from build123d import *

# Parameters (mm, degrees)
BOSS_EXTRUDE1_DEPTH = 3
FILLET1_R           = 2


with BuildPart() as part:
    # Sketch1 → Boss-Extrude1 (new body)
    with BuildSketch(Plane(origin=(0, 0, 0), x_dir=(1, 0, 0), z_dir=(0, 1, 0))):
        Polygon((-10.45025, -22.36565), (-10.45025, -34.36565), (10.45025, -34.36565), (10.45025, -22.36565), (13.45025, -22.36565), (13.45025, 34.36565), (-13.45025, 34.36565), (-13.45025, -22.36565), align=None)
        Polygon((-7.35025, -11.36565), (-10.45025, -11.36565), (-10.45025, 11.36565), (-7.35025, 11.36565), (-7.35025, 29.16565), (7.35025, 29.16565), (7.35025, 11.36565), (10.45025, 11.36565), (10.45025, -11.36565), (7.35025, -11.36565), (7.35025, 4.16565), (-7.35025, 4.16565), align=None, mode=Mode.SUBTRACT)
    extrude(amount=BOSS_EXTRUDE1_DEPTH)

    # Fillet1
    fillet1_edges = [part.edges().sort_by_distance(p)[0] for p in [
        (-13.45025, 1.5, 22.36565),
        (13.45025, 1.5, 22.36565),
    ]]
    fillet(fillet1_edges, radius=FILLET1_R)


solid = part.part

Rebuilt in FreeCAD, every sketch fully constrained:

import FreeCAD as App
import Part
import Sketcher


def edges_at(feature, points):
    """Names of the edges that pass closest to the given points."""
    edges = feature.Shape.Edges
    near = lambda p: min(range(len(edges)), key=lambda i: edges[i].distToShape(Part.Vertex(*p))[0])
    return sorted({f"Edge{near(p) + 1}" for p in points})


def add_polygon(sketch, points):
    """Adds a closed chain of lines whose ends are joined by coincident constraints."""
    first, n = sketch.GeometryCount, len(points)
    for a, b in zip(points, points[1:] + points[:1]):
        sketch.addGeometry(Part.LineSegment(App.Vector(*a, 0), App.Vector(*b, 0)), False)
    for i in range(n):
        sketch.addConstraint(Sketcher.Constraint("Coincident", first + i, 2, first + (i + 1) % n, 1))

doc = App.newDocument("Part")
params = doc.addObject("Spreadsheet::Sheet", "Params")
for row, (alias, value) in enumerate([
    ("sketch1_width", "3 mm"),
    ("sketch1_height", "12 mm"),
    ("sketch1_width2", "3.1 mm"),
    ("sketch1_height2", "17.8 mm"),
    ("pad1_length", "3 mm"),
    ("fillet_radius", "2 mm"),
], start=1):
    params.set(f"A{row}", alias)
    params.set(f"B{row}", "=" + value)
    params.setAlias(f"B{row}", alias)

body = doc.addObject("PartDesign::Body", "Body")

sketch1 = body.newObject("Sketcher::SketchObject", "Sketch")
sketch1.AttachmentSupport = (doc.getObject("XZ_Plane"), [""])
sketch1.MapMode = "FlatFace"
add_polygon(sketch1, [(-10.5, 22.4), (-10.5, 34.4), (10.5, 34.4), (10.5, 22.4), (13.5, 22.4), (13.5, -34.4), (-13.5, -34.4), (-13.5, 22.4)])
add_polygon(sketch1, [(-7.4, -4.2), (-7.4, 11.4), (-10.5, 11.4), (-10.5, -11.4), (-7.4, -11.4), (-7.4, -29.2), (7.4, -29.2), (7.4, -11.4), (10.5, -11.4), (10.5, 11.4), (7.4, 11.4), (7.4, -4.2)])
sketch1.addConstraint([
    Sketcher.Constraint("Vertical", 0),
    Sketcher.Constraint("Horizontal", 1),
    Sketcher.Constraint("Vertical", 2),
    Sketcher.Constraint("Horizontal", 3),
    Sketcher.Constraint("Vertical", 4),
    Sketcher.Constraint("Horizontal", 5),
    Sketcher.Constraint("Vertical", 6),
    Sketcher.Constraint("Horizontal", 7),
    Sketcher.Constraint("Vertical", 8),
    Sketcher.Constraint("Horizontal", 9),
    Sketcher.Constraint("Vertical", 10),
    Sketcher.Constraint("Horizontal", 11),
    Sketcher.Constraint("Vertical", 12),
    Sketcher.Constraint("Horizontal", 13),
    Sketcher.Constraint("Vertical", 14),
    Sketcher.Constraint("Horizontal", 15),
    Sketcher.Constraint("Vertical", 16),
    Sketcher.Constraint("Horizontal", 17),
    Sketcher.Constraint("Vertical", 18),
    Sketcher.Constraint("Horizontal", 19),
    Sketcher.Constraint("Symmetric", 8, 2, 14, 2, -1, 1),
    Sketcher.Constraint("Symmetric", 10, 2, 16, 2, -1, 1),
    Sketcher.Constraint("Symmetric", 3, 2, 6, 2, -2),
    Sketcher.Constraint("Symmetric", 11, 2, 14, 2, -2),
    Sketcher.Constraint("Vertical", 7, 2, 9, 2),
    Sketcher.Constraint("Vertical", 2, 2, 15, 2),
    Sketcher.Constraint("Vertical", 14, 2, 17, 2),
    Sketcher.Constraint("DistanceX", 3, 1, 3, 2, 3.0),
    Sketcher.Constraint("DistanceY", 0, 1, 0, 2, 12.0),
    Sketcher.Constraint("DistanceX", 9, 2, 9, 1, 3.1),
    Sketcher.Constraint("DistanceY", 12, 2, 12, 1, 17.8),
    Sketcher.Constraint("DistanceY", 8, 2, 7, 2, 11.0),
    Sketcher.Constraint("DistanceY", 5, 2, 10, 2, 23.0),
    Sketcher.Constraint("DistanceY", 14, 2, 18, 2, 7.2),
    Sketcher.Constraint("DistanceX", 1, 1, 1, 2, 20.9005),
    Sketcher.Constraint("DistanceY", 4, 2, 4, 1, 56.7313),
])
sketch1.setExpression("Constraints[47]", "Params.sketch1_width")
sketch1.setExpression("Constraints[48]", "Params.sketch1_height")
sketch1.setExpression("Constraints[49]", "Params.sketch1_width2")
sketch1.setExpression("Constraints[50]", "Params.sketch1_height2")
pad1 = body.newObject("PartDesign::Pad", "Pad")
pad1.Profile = sketch1
pad1.setExpression("Length", "Params.pad1_length")
pad1.Reversed = True
doc.recompute()

fillet = body.newObject("PartDesign::Fillet", "Fillet")
fillet.Base = (pad1, edges_at(pad1, [(-13.45, 1.5, 22.366), (13.45, 1.5, 22.366)]))
fillet.setExpression("Radius", "Params.fillet_radius")

doc.recompute()
